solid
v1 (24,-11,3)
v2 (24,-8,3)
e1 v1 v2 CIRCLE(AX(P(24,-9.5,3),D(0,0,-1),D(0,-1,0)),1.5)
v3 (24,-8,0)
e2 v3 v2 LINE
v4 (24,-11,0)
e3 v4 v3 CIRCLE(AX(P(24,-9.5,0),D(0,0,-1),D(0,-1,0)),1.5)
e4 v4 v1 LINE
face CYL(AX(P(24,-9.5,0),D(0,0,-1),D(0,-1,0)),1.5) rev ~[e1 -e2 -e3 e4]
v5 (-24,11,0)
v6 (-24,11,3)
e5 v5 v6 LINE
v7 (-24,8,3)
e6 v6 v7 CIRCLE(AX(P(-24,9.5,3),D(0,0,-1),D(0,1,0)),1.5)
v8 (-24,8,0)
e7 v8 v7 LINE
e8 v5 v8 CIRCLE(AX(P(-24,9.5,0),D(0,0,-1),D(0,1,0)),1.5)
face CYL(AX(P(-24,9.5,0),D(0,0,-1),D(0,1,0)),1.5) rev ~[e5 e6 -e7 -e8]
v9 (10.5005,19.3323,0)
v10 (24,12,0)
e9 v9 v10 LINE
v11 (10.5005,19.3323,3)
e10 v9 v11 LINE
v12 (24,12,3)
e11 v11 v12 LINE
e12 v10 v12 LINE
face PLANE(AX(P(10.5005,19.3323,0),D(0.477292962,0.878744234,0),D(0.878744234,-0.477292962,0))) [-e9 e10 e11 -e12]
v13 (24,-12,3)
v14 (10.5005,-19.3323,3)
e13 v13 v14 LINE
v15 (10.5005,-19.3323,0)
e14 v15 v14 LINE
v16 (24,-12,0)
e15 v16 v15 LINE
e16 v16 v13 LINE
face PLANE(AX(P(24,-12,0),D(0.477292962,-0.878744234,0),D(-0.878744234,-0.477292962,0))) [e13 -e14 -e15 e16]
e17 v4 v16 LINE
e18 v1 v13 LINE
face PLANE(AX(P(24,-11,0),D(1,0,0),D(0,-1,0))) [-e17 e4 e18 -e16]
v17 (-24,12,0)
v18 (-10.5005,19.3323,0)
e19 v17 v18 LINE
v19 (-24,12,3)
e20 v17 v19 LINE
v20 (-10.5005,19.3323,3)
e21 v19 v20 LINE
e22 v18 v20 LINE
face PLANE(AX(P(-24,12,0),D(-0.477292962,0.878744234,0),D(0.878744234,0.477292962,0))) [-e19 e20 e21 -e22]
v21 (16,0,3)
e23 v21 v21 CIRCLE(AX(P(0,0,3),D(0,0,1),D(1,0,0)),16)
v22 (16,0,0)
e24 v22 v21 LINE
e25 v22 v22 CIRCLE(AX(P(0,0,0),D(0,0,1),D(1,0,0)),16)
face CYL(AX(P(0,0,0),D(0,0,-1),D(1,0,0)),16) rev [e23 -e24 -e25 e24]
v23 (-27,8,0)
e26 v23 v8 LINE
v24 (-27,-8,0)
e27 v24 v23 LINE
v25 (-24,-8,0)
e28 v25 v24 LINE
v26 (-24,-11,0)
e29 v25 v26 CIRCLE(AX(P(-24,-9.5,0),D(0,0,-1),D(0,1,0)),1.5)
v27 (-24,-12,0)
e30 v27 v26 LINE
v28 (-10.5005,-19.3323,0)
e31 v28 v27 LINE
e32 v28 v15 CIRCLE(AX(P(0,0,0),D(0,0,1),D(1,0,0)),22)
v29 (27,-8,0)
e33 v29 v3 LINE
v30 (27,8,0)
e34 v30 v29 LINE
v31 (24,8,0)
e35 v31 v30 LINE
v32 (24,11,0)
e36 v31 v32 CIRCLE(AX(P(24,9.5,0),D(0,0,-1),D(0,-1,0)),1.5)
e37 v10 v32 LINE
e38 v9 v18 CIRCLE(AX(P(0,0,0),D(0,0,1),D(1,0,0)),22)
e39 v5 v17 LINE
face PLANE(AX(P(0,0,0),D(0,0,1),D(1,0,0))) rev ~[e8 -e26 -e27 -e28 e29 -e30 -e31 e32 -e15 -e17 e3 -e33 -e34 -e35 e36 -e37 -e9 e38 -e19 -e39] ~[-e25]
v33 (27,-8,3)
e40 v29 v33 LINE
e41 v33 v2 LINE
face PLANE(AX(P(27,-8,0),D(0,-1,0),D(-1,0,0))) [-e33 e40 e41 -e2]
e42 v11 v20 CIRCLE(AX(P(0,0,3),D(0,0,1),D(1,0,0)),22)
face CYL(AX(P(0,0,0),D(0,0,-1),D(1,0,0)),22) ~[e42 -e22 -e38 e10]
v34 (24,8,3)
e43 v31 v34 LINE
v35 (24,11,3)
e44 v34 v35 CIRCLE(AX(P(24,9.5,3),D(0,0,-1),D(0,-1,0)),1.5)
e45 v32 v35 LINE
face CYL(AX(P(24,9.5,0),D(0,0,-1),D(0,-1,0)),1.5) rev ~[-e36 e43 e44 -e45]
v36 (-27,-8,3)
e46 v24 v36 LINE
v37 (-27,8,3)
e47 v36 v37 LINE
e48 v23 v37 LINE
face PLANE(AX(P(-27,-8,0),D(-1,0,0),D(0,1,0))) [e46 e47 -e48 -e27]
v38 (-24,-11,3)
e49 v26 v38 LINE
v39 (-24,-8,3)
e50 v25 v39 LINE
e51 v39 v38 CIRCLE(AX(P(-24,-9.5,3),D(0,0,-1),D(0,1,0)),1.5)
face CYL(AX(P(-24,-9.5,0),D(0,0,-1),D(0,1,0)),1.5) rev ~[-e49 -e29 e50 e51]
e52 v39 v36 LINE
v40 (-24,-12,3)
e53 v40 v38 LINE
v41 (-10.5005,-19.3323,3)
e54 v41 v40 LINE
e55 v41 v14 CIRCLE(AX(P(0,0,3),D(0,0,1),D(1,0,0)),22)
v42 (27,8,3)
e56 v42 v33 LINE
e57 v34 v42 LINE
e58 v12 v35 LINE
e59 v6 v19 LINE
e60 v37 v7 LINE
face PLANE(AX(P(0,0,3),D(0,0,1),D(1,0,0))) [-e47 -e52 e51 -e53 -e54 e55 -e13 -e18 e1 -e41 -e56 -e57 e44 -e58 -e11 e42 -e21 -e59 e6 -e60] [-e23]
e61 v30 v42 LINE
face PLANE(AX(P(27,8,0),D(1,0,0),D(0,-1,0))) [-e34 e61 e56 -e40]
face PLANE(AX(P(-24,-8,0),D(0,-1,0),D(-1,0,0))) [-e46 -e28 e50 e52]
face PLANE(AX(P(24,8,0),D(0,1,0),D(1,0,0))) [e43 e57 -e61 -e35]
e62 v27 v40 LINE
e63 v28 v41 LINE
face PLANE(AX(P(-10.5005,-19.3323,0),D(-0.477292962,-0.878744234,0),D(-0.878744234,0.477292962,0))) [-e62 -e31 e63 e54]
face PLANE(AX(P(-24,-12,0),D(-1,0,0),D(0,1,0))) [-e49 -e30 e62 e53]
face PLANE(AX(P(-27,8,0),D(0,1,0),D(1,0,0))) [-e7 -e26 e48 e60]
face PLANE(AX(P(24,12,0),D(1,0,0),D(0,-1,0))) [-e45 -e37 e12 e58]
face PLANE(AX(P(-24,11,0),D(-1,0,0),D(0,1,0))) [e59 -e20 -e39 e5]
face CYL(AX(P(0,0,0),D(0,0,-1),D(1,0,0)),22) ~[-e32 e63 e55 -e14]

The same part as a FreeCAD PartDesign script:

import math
import FreeCAD as App
import Part
import Sketcher

V = App.Vector
Q = App.Units.Quantity

doc = App.newDocument("Part")
body = doc.addObject("PartDesign::Body", "Body")

sketch1 = body.newObject("Sketcher::SketchObject", "Sketch")
sketch1.AttachmentSupport = (doc.getObject("XY_Plane"), [""])
sketch1.MapMode = "FlatFace"
sketch1.addGeometry([
    Part.Circle(V(0, 0, 0), V(0, 0, 1), 22),
    Part.Circle(V(0, 0, 0), V(0, 0, 1), 16),
], False)
sketch1.addConstraint([
    Sketcher.Constraint("Coincident", 0, 3, -1, 1),
    Sketcher.Constraint("Coincident", 1, 3, -1, 1),
    Sketcher.Constraint("Diameter", 1, Q("32 mm")),
    Sketcher.Constraint("Diameter", 0, Q("44 mm")),
])
pad1 = body.newObject("PartDesign::Pad", "Pad")
pad1.Profile = sketch1
pad1.Length = 3

sketch2 = body.newObject("Sketcher::SketchObject", "Sketch001")
sketch2.AttachmentSupport = (doc.getObject("XY_Plane"), [""])
sketch2.MapMode = "FlatFace"
sketch2.addGeometry([
    Part.LineSegment(V(24, 8, 0), V(27, 8, 0)),
    Part.LineSegment(V(27, 8, 0), V(27, -8, 0)),
    Part.LineSegment(V(27, -8, 0), V(24, -8, 0)),
    Part.ArcOfCircle(Part.Circle(V(24, -9.5, 0), V(0, 0, 1), 1.5), math.radians(90), math.radians(270)),
    Part.LineSegment(V(24, -11, 0), V(24, -12, 0)),
    Part.LineSegment(V(24, -12, 0), V(10.5005, -19.3323, 0)),
    Part.ArcOfCircle(Part.Circle(V(0, 0, 0), V(0, 0, 1), 22), math.radians(-61.491034), math.radians(61.491034)),
    Part.LineSegment(V(10.5005, 19.3323, 0), V(24, 12, 0)),
    Part.LineSegment(V(24, 12, 0), V(24, 11, 0)),
    Part.ArcOfCircle(Part.Circle(V(24, 9.5, 0), V(0, 0, 1), 1.5), math.radians(90), math.radians(270)),
    Part.LineSegment(V(-24, 12, 0), V(-10.5005, 19.3323, 0)),
    Part.ArcOfCircle(Part.Circle(V(0, 0, 0), V(0, 0, 1), 22), math.radians(118.508966), math.radians(241.491034)),
    Part.LineSegment(V(-10.5005, -19.3323, 0), V(-24, -12, 0)),
    Part.LineSegment(V(-24, -12, 0), V(-24, -11, 0)),
    Part.ArcOfCircle(Part.Circle(V(-24, -9.5, 0), V(0, 0, 1), 1.5), math.radians(-90), math.radians(90)),
    Part.LineSegment(V(-24, -8, 0), V(-27, -8, 0)),
    Part.LineSegment(V(-27, -8, 0), V(-27, 8, 0)),
    Part.LineSegment(V(-27, 8, 0), V(-24, 8, 0)),
    Part.ArcOfCircle(Part.Circle(V(-24, 9.5, 0), V(0, 0, 1), 1.5), math.radians(-90), math.radians(90)),
    Part.LineSegment(V(-24, 11, 0), V(-24, 12, 0)),
], False)
sketch2.addConstraint([
    Sketcher.Constraint("Coincident", 0, 2, 1, 1),
    Sketcher.Constraint("Coincident", 1, 2, 2, 1),
    Sketcher.Constraint("Tangent", 2, 2, 3, 1),
    Sketcher.Constraint("Coincident", 3, 2, 4, 1),
    Sketcher.Constraint("Coincident", 4, 2, 5, 1),
    Sketcher.Constraint("Tangent", 5, 2, 6, 1),
    Sketcher.Constraint("Tangent", 6, 2, 7, 1),
    Sketcher.Constraint("Coincident", 7, 2, 8, 1),
    Sketcher.Constraint("Coincident", 8, 2, 9, 1),
    Sketcher.Constraint("Tangent", 9, 2, 0, 1),
    Sketcher.Constraint("Tangent", 10, 2, 11, 1),
    Sketcher.Constraint("Tangent", 11, 2, 12, 1),
    Sketcher.Constraint("Coincident", 12, 2, 13, 1),
    Sketcher.Constraint("Coincident", 13, 2, 14, 1),
    Sketcher.Constraint("Tangent", 14, 2, 15, 1),
    Sketcher.Constraint("Coincident", 15, 2, 16, 1),
    Sketcher.Constraint("Coincident", 16, 2, 17, 1),
    Sketcher.Constraint("Tangent", 17, 2, 18, 1),
    Sketcher.Constraint("Coincident", 18, 2, 19, 1),
    Sketcher.Constraint("Coincident", 19, 2, 10, 1),
    Sketcher.Constraint("Horizontal", 0),
    Sketcher.Constraint("Vertical", 1),
    Sketcher.Constraint("Horizontal", 2),
    Sketcher.Constraint("Vertical", 4),
    Sketcher.Constraint("Vertical", 8),
    Sketcher.Constraint("Vertical", 13),
    Sketcher.Constraint("Horizontal", 15),
    Sketcher.Constraint("Vertical", 16),
    Sketcher.Constraint("Horizontal", 17),
    Sketcher.Constraint("Vertical", 19),
    Sketcher.Constraint("Coincident", 6, 3, -1, 1),
    Sketcher.Constraint("Coincident", 11, 3, -1, 1),
    Sketcher.Constraint("Equal", 3, 9),
    Sketcher.Constraint("Equal", 6, 11),
    Sketcher.Constraint("Equal", 9, 14),
    Sketcher.Constraint("Equal", 14, 18),
    Sketcher.Constraint("Symmetric", 9, 3, 14, 3, -1, 1),
    Sketcher.Constraint("Symmetric", 3, 3, 18, 3, -1, 1),
    Sketcher.Constraint("Symmetric", 7, 2, 12, 2, -1, 1),
    Sketcher.Constraint("Symmetric", 4, 2, 19, 2, -1, 1),
    Sketcher.Constraint("Symmetric", 3, 3, 14, 3, -2),
    Sketcher.Constraint("Symmetric", 4, 2, 12, 2, -2),
    Sketcher.Constraint("Vertical", 2, 2, 3, 2),
    Sketcher.Constraint("Equal", 2, 15),
    Sketcher.Constraint("Radius", 3, Q("1.5 mm")),
    Sketcher.Constraint("DistanceX", 0, 1, 0, 2, Q("3 mm")),
    Sketcher.Constraint("DistanceY", 1, 2, 1, 1, Q("16 mm")),
    Sketcher.Constraint("DistanceX", -1, 1, 3, 3, Q("24 mm")),
    Sketcher.Constraint("Radius", 6, Q("22 mm")),
    Sketcher.Constraint("DistanceY", 4, 2, 4, 1, Q("1 mm")),
])
pad2 = body.newObject("PartDesign::Pad", "Pad001")
pad2.Profile = sketch2
pad2.Length = 3

doc.recompute()
